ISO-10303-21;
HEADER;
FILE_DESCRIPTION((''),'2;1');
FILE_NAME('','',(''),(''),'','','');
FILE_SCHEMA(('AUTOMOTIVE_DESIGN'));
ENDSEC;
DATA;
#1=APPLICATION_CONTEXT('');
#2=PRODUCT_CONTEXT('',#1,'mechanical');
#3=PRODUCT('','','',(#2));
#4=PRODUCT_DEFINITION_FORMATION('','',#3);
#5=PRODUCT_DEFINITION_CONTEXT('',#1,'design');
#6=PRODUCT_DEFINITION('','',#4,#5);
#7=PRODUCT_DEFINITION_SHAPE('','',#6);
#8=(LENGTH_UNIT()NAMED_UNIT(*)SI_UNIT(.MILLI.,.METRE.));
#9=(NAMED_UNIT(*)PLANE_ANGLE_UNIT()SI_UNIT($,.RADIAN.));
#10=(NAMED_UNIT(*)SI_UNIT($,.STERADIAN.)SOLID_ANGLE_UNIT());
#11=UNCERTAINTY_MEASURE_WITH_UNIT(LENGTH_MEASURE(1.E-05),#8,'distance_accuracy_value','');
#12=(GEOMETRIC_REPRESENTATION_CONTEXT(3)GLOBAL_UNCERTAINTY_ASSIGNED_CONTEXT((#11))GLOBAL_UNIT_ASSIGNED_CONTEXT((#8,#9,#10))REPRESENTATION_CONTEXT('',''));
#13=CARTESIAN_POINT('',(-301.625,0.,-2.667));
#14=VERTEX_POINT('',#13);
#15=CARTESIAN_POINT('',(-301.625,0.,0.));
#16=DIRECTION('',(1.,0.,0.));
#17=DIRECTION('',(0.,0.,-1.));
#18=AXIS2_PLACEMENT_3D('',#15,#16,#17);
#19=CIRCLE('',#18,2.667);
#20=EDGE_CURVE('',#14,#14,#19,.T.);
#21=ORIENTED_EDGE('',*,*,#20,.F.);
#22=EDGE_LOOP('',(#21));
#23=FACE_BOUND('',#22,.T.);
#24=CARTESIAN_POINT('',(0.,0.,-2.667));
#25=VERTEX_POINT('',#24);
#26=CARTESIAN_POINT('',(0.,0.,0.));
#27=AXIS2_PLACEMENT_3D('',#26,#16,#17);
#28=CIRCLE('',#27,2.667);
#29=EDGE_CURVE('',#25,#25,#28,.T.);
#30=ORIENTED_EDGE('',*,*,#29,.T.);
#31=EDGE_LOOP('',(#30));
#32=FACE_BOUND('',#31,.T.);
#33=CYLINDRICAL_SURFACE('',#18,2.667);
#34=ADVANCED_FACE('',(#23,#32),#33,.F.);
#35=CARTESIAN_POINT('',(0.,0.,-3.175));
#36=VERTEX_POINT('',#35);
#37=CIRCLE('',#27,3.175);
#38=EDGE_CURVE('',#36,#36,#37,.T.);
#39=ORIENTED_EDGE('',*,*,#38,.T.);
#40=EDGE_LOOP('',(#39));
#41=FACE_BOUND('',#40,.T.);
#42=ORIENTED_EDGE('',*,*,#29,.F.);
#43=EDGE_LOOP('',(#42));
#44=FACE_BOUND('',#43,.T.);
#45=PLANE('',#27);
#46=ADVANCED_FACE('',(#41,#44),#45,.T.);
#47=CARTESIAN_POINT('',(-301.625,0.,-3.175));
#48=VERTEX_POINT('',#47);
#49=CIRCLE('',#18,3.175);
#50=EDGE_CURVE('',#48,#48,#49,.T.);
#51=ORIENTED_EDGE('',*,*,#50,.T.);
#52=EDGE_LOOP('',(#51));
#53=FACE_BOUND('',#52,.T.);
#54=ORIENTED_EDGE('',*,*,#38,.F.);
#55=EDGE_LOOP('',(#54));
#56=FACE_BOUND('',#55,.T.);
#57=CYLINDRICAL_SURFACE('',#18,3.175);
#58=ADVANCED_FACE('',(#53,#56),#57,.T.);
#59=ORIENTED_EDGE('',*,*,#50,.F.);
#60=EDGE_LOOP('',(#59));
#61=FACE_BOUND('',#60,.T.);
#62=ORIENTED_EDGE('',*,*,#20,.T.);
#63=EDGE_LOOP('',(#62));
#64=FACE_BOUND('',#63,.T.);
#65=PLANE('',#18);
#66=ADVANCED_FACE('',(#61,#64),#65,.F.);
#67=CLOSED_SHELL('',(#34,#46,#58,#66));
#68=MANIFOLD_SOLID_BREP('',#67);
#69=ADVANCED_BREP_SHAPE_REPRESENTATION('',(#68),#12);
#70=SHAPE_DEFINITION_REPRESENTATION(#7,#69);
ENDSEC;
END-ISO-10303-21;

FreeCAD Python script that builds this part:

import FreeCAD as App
import Part
import Sketcher

V = App.Vector
Q = App.Units.Quantity

doc = App.newDocument("Part")
body = doc.addObject("PartDesign::Body", "Body")

# Sketch on YZ plane
sketch1 = body.newObject("Sketcher::SketchObject", "Sketch")
sketch1.AttachmentSupport = (doc.getObject("YZ_Plane"), [""])
sketch1.MapMode = "FlatFace"
sketch1.addGeometry(Part.Circle(V(0, 0, 0), V(0, 0, 1), 3.2), False)
sketch1.addGeometry(Part.Circle(V(0, 0, 0), V(0, 0, 1), 2.7), False)
sketch1.addConstraint(Sketcher.Constraint("Coincident", 0, 3, -1, 1))
sketch1.addConstraint(Sketcher.Constraint("Coincident", 1, 3, -1, 1))
sketch1.addConstraint(Sketcher.Constraint("Diameter", 0, Q("0.25 in")))
sketch1.addConstraint(Sketcher.Constraint("Diameter", 1, Q("0.21 in")))
pad1 = body.newObject("PartDesign::Pad", "Pad")
pad1.Profile = sketch1
pad1.Length = Q("11.875 in")
pad1.Reversed = True

doc.recompute()
